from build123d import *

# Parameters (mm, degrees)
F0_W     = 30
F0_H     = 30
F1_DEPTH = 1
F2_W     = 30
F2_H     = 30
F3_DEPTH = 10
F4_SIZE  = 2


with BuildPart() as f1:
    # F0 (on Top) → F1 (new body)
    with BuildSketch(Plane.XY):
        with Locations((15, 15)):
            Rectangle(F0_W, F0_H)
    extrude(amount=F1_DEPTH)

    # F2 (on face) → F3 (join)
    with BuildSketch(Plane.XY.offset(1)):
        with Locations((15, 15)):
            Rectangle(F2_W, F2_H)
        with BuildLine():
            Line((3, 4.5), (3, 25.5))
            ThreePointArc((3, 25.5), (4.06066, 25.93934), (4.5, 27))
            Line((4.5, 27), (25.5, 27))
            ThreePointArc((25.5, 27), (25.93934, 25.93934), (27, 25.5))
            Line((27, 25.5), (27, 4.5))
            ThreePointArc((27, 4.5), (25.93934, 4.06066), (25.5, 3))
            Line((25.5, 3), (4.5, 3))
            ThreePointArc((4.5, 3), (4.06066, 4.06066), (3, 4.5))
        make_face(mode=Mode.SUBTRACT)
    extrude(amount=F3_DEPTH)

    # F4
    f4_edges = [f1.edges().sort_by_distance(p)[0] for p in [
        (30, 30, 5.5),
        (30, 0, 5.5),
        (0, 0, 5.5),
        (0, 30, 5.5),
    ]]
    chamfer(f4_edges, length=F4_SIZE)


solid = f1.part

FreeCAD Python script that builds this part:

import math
import FreeCAD as App
import Part
import Sketcher
Q = App.Units.Quantity


def edges_at(feature, points):
    """Names of the edges that pass closest to the given points."""
    edges = feature.Shape.Edges
    near = lambda p: min(range(len(edges)), key=lambda i: edges[i].distToShape(Part.Vertex(*p))[0])
    return sorted({f"Edge{near(p) + 1}" for p in points})

doc = App.newDocument("Part")
body = doc.addObject("PartDesign::Body", "Body")

sketch1 = body.newObject("Sketcher::SketchObject", "Sketch")
sketch1.AttachmentSupport = (doc.getObject("XY_Plane"), [""])
sketch1.MapMode = "FlatFace"
sketch1.addGeometry(Part.LineSegment(App.Vector(0, 30, 0), App.Vector(0, 0, 0)), False)
sketch1.addGeometry(Part.LineSegment(App.Vector(0, 0, 0), App.Vector(30, 0, 0)), False)
sketch1.addGeometry(Part.LineSegment(App.Vector(30, 0, 0), App.Vector(30, 30, 0)), False)
sketch1.addGeometry(Part.LineSegment(App.Vector(30, 30, 0), App.Vector(0, 30, 0)), False)
sketch1.addConstraint(Sketcher.Constraint("Coincident", 0, 2, 1, 1))
sketch1.addConstraint(Sketcher.Constraint("Coincident", 1, 2, 2, 1))
sketch1.addConstraint(Sketcher.Constraint("Coincident", 2, 2, 3, 1))
sketch1.addConstraint(Sketcher.Constraint("Coincident", 3, 2, 0, 1))
sketch1.addConstraint(Sketcher.Constraint("Vertical", 0))
sketch1.addConstraint(Sketcher.Constraint("Horizontal", 1))
sketch1.addConstraint(Sketcher.Constraint("Vertical", 2))
sketch1.addConstraint(Sketcher.Constraint("Horizontal", 3))
sketch1.addConstraint(Sketcher.Constraint("Coincident", 0, 2, -1, 1))
sketch1.addConstraint(Sketcher.Constraint("Equal", 3, 0))
sketch1.addConstraint(Sketcher.Constraint("DistanceX", 1, 1, 1, 2, Q("30 mm")))
pad1 = body.newObject("PartDesign::Pad", "Pad")
pad1.Profile = sketch1
pad1.Length = 1

sketch2 = body.newObject("Sketcher::SketchObject", "Sketch001")
sketch2.AttachmentSupport = (doc.getObject("XY_Plane"), [""])
sketch2.MapMode = "FlatFace"
sketch2.AttachmentOffset = App.Placement(App.Vector(0, 0, 1), App.Rotation())
sketch2.addGeometry(Part.LineSegment(App.Vector(0, 30, 0), App.Vector(0, 0, 0)), False)
sketch2.addGeometry(Part.LineSegment(App.Vector(0, 0, 0), App.Vector(30, 0, 0)), False)
sketch2.addGeometry(Part.LineSegment(App.Vector(30, 0, 0), App.Vector(30, 30, 0)), False)
sketch2.addGeometry(Part.LineSegment(App.Vector(30, 30, 0), App.Vector(0, 30, 0)), False)
sketch2.addGeometry(Part.ArcOfCircle(Part.Circle(App.Vector(2.999999, 2.999999, 0), App.Vector(0, 0, 1), 1.500001), math.radians(0.000022), math.radians(89.999978)), False)
sketch2.addGeometry(Part.LineSegment(App.Vector(3, 4.5, 0), App.Vector(3, 25.5, 0)), False)
sketch2.addGeometry(Part.ArcOfCircle(Part.Circle(App.Vector(2.999999, 27.000001, 0), App.Vector(0, 0, 1), 1.500001), math.radians(-89.999978), math.radians(-0.000022)), False)
sketch2.addGeometry(Part.LineSegment(App.Vector(4.5, 27, 0), App.Vector(25.5, 27, 0)), False)
sketch2.addGeometry(Part.ArcOfCircle(Part.Circle(App.Vector(27.000001, 27.000001, 0), App.Vector(0, 0, 1), 1.500001), math.radians(-179.999978), math.radians(-90.000022)), False)
sketch2.addGeometry(Part.LineSegment(App.Vector(27, 25.5, 0), App.Vector(27, 4.5, 0)), False)
sketch2.addGeometry(Part.ArcOfCircle(Part.Circle(App.Vector(27.000001, 2.999999, 0), App.Vector(0, 0, 1), 1.500001), math.radians(90.000022), math.radians(179.999978)), False)
sketch2.addGeometry(Part.LineSegment(App.Vector(25.5, 3, 0), App.Vector(4.5, 3, 0)), False)
sketch2.addConstraint(Sketcher.Constraint("Coincident", 0, 2, 1, 1))
sketch2.addConstraint(Sketcher.Constraint("Coincident", 1, 2, 2, 1))
sketch2.addConstraint(Sketcher.Constraint("Coincident", 2, 2, 3, 1))
sketch2.addConstraint(Sketcher.Constraint("Coincident", 3, 2, 0, 1))
sketch2.addConstraint(Sketcher.Constraint("Coincident", 4, 2, 5, 1))
sketch2.addConstraint(Sketcher.Constraint("Coincident", 5, 2, 6, 1))
sketch2.addConstraint(Sketcher.Constraint("Coincident", 6, 2, 7, 1))
sketch2.addConstraint(Sketcher.Constraint("Coincident", 7, 2, 8, 1))
sketch2.addConstraint(Sketcher.Constraint("Coincident", 8, 2, 9, 1))
sketch2.addConstraint(Sketcher.Constraint("Coincident", 9, 2, 10, 1))
sketch2.addConstraint(Sketcher.Constraint("Coincident", 10, 2, 11, 1))
sketch2.addConstraint(Sketcher.Constraint("Coincident", 11, 2, 4, 1))
sketch2.addConstraint(Sketcher.Constraint("Vertical", 0))
sketch2.addConstraint(Sketcher.Constraint("Horizontal", 1))
sketch2.addConstraint(Sketcher.Constraint("Vertical", 2))
sketch2.addConstraint(Sketcher.Constraint("Horizontal", 3))
sketch2.addConstraint(Sketcher.Constraint("Vertical", 5))
sketch2.addConstraint(Sketcher.Constraint("Horizontal", 7))
sketch2.addConstraint(Sketcher.Constraint("Vertical", 9))
sketch2.addConstraint(Sketcher.Constraint("Horizontal", 11))
sketch2.addConstraint(Sketcher.Constraint("Coincident", 0, 2, -1, 1))
sketch2.addConstraint(Sketcher.Constraint("Equal", 4, 6))
sketch2.addConstraint(Sketcher.Constraint("Equal", 6, 8))
sketch2.addConstraint(Sketcher.Constraint("Equal", 8, 10))
sketch2.addConstraint(Sketcher.Constraint("Horizontal", 6, 3, 8, 3))
sketch2.addConstraint(Sketcher.Constraint("Horizontal", 4, 3, 10, 3))
sketch2.addConstraint(Sketcher.Constraint("Horizontal", 8, 3, 6, 2))
sketch2.addConstraint(Sketcher.Constraint("Horizontal", 4, 3, 10, 2))
sketch2.addConstraint(Sketcher.Constraint("Vertical", 4, 3, 6, 3))
sketch2.addConstraint(Sketcher.Constraint("Vertical", 8, 3, 10, 3))
sketch2.addConstraint(Sketcher.Constraint("Vertical", 6, 3, 4, 2))
sketch2.addConstraint(Sketcher.Constraint("Vertical", 10, 3, 8, 2))
sketch2.addConstraint(Sketcher.Constraint("Equal", 3, 0))
sketch2.addConstraint(Sketcher.Constraint("Equal", 11, 5))
sketch2.addConstraint(Sketcher.Constraint("Radius", 4, Q("1.500001 mm")))
sketch2.addConstraint(Sketcher.Constraint("DistanceX", 1, 1, 1, 2, Q("30 mm")))
sketch2.addConstraint(Sketcher.Constraint("DistanceX", 7, 1, 7, 2, Q("21 mm")))
sketch2.addConstraint(Sketcher.Constraint("DistanceX", -1, 1, 4, 3, Q("2.999999 mm")))
sketch2.addConstraint(Sketcher.Constraint("DistanceY", -1, 1, 4, 3, Q("2.999999 mm")))
pad2 = body.newObject("PartDesign::Pad", "Pad001")
pad2.Profile = sketch2
pad2.Length = 10
doc.recompute()

chamfer = body.newObject("PartDesign::Chamfer", "Chamfer")
chamfer.Base = (pad2, edges_at(pad2, [
    (30, 30, 5.5),
    (30, 0, 5.5),
    (0, 0, 5.5),
    (0, 30, 5.5),
]))
chamfer.Size = 2

doc.recompute()
